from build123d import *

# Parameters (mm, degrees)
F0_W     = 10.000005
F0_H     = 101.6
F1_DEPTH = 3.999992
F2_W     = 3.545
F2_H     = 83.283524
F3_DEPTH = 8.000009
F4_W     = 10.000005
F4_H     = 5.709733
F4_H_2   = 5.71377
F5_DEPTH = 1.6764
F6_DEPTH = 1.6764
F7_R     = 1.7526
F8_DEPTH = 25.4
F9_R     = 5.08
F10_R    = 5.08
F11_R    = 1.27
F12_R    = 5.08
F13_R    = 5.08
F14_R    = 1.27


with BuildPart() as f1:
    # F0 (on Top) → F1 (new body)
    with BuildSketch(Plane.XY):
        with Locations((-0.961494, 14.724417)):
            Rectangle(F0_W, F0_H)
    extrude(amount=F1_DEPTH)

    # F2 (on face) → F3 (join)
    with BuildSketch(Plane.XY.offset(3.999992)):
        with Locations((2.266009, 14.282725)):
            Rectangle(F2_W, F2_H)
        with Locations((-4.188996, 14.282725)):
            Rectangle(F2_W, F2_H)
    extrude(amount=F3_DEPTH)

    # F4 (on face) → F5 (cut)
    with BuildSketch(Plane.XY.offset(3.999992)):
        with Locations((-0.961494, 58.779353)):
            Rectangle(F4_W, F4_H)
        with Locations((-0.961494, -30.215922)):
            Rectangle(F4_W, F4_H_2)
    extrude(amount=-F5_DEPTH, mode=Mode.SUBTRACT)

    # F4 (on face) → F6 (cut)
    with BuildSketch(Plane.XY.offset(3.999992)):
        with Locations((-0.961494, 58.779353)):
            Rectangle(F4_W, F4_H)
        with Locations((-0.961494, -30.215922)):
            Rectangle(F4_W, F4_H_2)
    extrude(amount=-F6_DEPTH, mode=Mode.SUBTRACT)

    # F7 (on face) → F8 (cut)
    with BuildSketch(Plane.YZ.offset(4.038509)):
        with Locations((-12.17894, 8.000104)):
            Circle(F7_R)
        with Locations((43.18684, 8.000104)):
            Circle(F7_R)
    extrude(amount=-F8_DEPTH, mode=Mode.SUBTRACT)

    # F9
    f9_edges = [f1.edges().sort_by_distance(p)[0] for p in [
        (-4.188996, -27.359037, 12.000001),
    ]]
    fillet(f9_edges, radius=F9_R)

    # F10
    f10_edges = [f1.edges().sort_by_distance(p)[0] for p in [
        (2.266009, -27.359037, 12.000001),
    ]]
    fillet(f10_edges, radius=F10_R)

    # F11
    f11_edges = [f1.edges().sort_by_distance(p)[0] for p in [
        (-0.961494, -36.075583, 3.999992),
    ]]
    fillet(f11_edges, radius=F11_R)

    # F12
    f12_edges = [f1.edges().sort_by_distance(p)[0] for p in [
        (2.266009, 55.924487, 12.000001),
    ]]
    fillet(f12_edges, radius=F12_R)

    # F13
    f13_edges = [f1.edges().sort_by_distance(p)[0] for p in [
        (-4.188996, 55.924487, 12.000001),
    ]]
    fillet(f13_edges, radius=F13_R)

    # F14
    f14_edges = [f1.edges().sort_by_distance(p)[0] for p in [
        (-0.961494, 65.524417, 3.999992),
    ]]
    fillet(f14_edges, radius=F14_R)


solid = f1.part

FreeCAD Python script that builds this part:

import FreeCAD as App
import Part
import Sketcher
from FreeCAD import Vector
Q = App.Units.Quantity


def edges_at(feature, points):
    """Names of the edges that pass closest to the given points."""
    edges = feature.Shape.Edges
    near = lambda p: min(range(len(edges)), key=lambda i: edges[i].distToShape(Part.Vertex(*p))[0])
    return sorted({f"Edge{near(p) + 1}" for p in points})


def add_polygon(sketch, points):
    """Adds a closed chain of lines whose ends are joined by coincident constraints."""
    first, n = sketch.GeometryCount, len(points)
    for a, b in zip(points, points[1:] + points[:1]):
        sketch.addGeometry(Part.LineSegment(App.Vector(*a, 0), App.Vector(*b, 0)), False)
    for i in range(n):
        sketch.addConstraint(Sketcher.Constraint("Coincident", first + i, 2, first + (i + 1) % n, 1))

doc = App.newDocument("Part")
body = doc.addObject("PartDesign::Body", "Body")

sketch1 = body.newObject("Sketcher::SketchObject", "Sketch")
sketch1.AttachmentSupport = (doc.getObject("XY_Plane"), [""])
sketch1.MapMode = "FlatFace"
add_polygon(sketch1, [(-6, 66), (-6, -36), (4, -36), (4, 66)])
sketch1.addConstraint(Sketcher.Constraint("Vertical", 0))
sketch1.addConstraint(Sketcher.Constraint("Horizontal", 1))
sketch1.addConstraint(Sketcher.Constraint("Vertical", 2))
sketch1.addConstraint(Sketcher.Constraint("Horizontal", 3))
sketch1.addConstraint(Sketcher.Constraint("DistanceY", 0, 2, 0, 1, Q("4 in")))
sketch1.addConstraint(Sketcher.Constraint("DistanceX", 1, 1, 1, 2, Q("10.000005 mm")))
sketch1.addConstraint(Sketcher.Constraint("DistanceX", -1, 1, 1, 2, Q("4.038508 mm")))
sketch1.addConstraint(Sketcher.Constraint("DistanceY", 0, 2, -1, 1, Q("36.075583 mm")))
pad1 = body.newObject("PartDesign::Pad", "Pad")
pad1.Profile = sketch1
pad1.Length = 3.999992

sketch2 = body.newObject("Sketcher::SketchObject", "Sketch001")
sketch2.AttachmentSupport = (doc.getObject("XY_Plane"), [""])
sketch2.MapMode = "FlatFace"
sketch2.AttachmentOffset = App.Placement(Vector(0, 0, 3.999992), App.Rotation())
add_polygon(sketch2, [(0.5, 55.9), (0.5, -27.4), (4, -27.4), (4, 55.9)])
add_polygon(sketch2, [(-6, 55.9), (-6, -27.4), (-2.4, -27.4), (-2.4, 55.9)])
sketch2.addConstraint(Sketcher.Constraint("Vertical", 0))
sketch2.addConstraint(Sketcher.Constraint("Horizontal", 1))
sketch2.addConstraint(Sketcher.Constraint("Vertical", 2))
sketch2.addConstraint(Sketcher.Constraint("Horizontal", 3))
sketch2.addConstraint(Sketcher.Constraint("Vertical", 4))
sketch2.addConstraint(Sketcher.Constraint("Horizontal", 5))
sketch2.addConstraint(Sketcher.Constraint("Vertical", 6))
sketch2.addConstraint(Sketcher.Constraint("Horizontal", 7))
sketch2.addConstraint(Sketcher.Constraint("Horizontal", 1, 2, 4, 2))
sketch2.addConstraint(Sketcher.Constraint("Horizontal", 3, 2, 6, 2))
sketch2.addConstraint(Sketcher.Constraint("Equal", 3, 5))
sketch2.addConstraint(Sketcher.Constraint("DistanceX", 1, 1, 1, 2, Q("3.545 mm")))
sketch2.addConstraint(Sketcher.Constraint("DistanceY", 0, 2, 0, 1, Q("83.283524 mm")))
sketch2.addConstraint(Sketcher.Constraint("DistanceX", -1, 1, 0, 2, Q("0.493509 mm")))
sketch2.addConstraint(Sketcher.Constraint("DistanceY", 0, 2, -1, 1, Q("27.359037 mm")))
sketch2.addConstraint(Sketcher.Constraint("DistanceX", 4, 2, -1, 1, Q("5.961496 mm")))
pad2 = body.newObject("PartDesign::Pad", "Pad001")
pad2.Profile = sketch2
pad2.Length = 8.000009

sketch3 = body.newObject("Sketcher::SketchObject", "Sketch002")
sketch3.AttachmentSupport = (doc.getObject("XY_Plane"), [""])
sketch3.MapMode = "FlatFace"
sketch3.AttachmentOffset = App.Placement(Vector(0, 0, 3.999992), App.Rotation())
add_polygon(sketch3, [(-6, 62), (-6, 56), (4, 56), (4, 62)])
add_polygon(sketch3, [(-6, -27), (-6, -33), (4, -33), (4, -27)])
sketch3.addConstraint(Sketcher.Constraint("Vertical", 0))
sketch3.addConstraint(Sketcher.Constraint("Horizontal", 1))
sketch3.addConstraint(Sketcher.Constraint("Vertical", 2))
sketch3.addConstraint(Sketcher.Constraint("Horizontal", 3))
sketch3.addConstraint(Sketcher.Constraint("Vertical", 4))
sketch3.addConstraint(Sketcher.Constraint("Horizontal", 5))
sketch3.addConstraint(Sketcher.Constraint("Vertical", 6))
sketch3.addConstraint(Sketcher.Constraint("Horizontal", 7))
sketch3.addConstraint(Sketcher.Constraint("Vertical", 3, 2, 4, 2))
sketch3.addConstraint(Sketcher.Constraint("Vertical", 2, 2, 5, 2))
sketch3.addConstraint(Sketcher.Constraint("DistanceY", 4, 2, 4, 1, Q("5.71377 mm")))
sketch3.addConstraint(Sketcher.Constraint("DistanceX", 1, 1, 1, 2, Q("10.000005 mm")))
sketch3.addConstraint(Sketcher.Constraint("DistanceY", 0, 2, 0, 1, Q("5.709733 mm")))
sketch3.addConstraint(Sketcher.Constraint("DistanceX", -1, 1, 1, 2, Q("4.038508 mm")))
sketch3.addConstraint(Sketcher.Constraint("DistanceY", -1, 1, 2, 2, Q("61.63422 mm")))
sketch3.addConstraint(Sketcher.Constraint("DistanceY", 4, 2, -1, 1, Q("33.072807 mm")))
pocket1 = body.newObject("PartDesign::Pocket", "Pocket")
pocket1.Profile = sketch3
pocket1.Length = Q("0.066 in")

sketch4 = body.newObject("Sketcher::SketchObject", "Sketch003")
sketch4.AttachmentSupport = (doc.getObject("XY_Plane"), [""])
sketch4.MapMode = "FlatFace"
sketch4.AttachmentOffset = App.Placement(Vector(0, 0, 3.999992), App.Rotation())
add_polygon(sketch4, [(-6, 62), (-6, 56), (4, 56), (4, 62)])
add_polygon(sketch4, [(-6, -27), (-6, -33), (4, -33), (4, -27)])
sketch4.addConstraint(Sketcher.Constraint("Vertical", 0))
sketch4.addConstraint(Sketcher.Constraint("Horizontal", 1))
sketch4.addConstraint(Sketcher.Constraint("Vertical", 2))
sketch4.addConstraint(Sketcher.Constraint("Horizontal", 3))
sketch4.addConstraint(Sketcher.Constraint("Vertical", 4))
sketch4.addConstraint(Sketcher.Constraint("Horizontal", 5))
sketch4.addConstraint(Sketcher.Constraint("Vertical", 6))
sketch4.addConstraint(Sketcher.Constraint("Horizontal", 7))
sketch4.addConstraint(Sketcher.Constraint("Vertical", 3, 2, 4, 2))
sketch4.addConstraint(Sketcher.Constraint("Vertical", 2, 2, 5, 2))
sketch4.addConstraint(Sketcher.Constraint("DistanceY", 4, 2, 4, 1, Q("5.71377 mm")))
sketch4.addConstraint(Sketcher.Constraint("DistanceX", 1, 1, 1, 2, Q("10.000005 mm")))
sketch4.addConstraint(Sketcher.Constraint("DistanceY", 0, 2, 0, 1, Q("5.709733 mm")))
sketch4.addConstraint(Sketcher.Constraint("DistanceX", -1, 1, 1, 2, Q("4.038508 mm")))
sketch4.addConstraint(Sketcher.Constraint("DistanceY", -1, 1, 2, 2, Q("61.63422 mm")))
sketch4.addConstraint(Sketcher.Constraint("DistanceY", 4, 2, -1, 1, Q("33.072807 mm")))
pocket2 = body.newObject("PartDesign::Pocket", "Pocket001")
pocket2.Profile = sketch4
pocket2.Length = Q("0.066 in")

sketch5 = body.newObject("Sketcher::SketchObject", "Sketch004")
sketch5.AttachmentSupport = (doc.getObject("YZ_Plane"), [""])
sketch5.MapMode = "FlatFace"
sketch5.AttachmentOffset = App.Placement(Vector(0, 0, 4.038509), App.Rotation())
sketch5.addGeometry(Part.Circle(Vector(-12.2, 8, 0), Vector(0, 0, 1), 1.8), False)
sketch5.addGeometry(Part.Circle(Vector(43.2, 8, 0), Vector(0, 0, 1), 1.8), False)
sketch5.addConstraint(Sketcher.Constraint("Equal", 0, 1))
sketch5.addConstraint(Sketcher.Constraint("Horizontal", 0, 3, 1, 3))
sketch5.addConstraint(Sketcher.Constraint("Diameter", 0, Q("0.138 in")))
sketch5.addConstraint(Sketcher.Constraint("DistanceX", 0, 3, -1, 1, Q("12.17894 mm")))
sketch5.addConstraint(Sketcher.Constraint("DistanceX", -1, 1, 1, 3, Q("43.18684 mm")))
sketch5.addConstraint(Sketcher.Constraint("DistanceY", -1, 1, 0, 3, Q("8.000104 mm")))
pocket3 = body.newObject("PartDesign::Pocket", "Pocket002")
pocket3.Profile = sketch5
pocket3.Length = Q("1 in")
doc.recompute()

fillet = body.newObject("PartDesign::Fillet", "Fillet")
fillet.Base = (pocket3, edges_at(pocket3, [(-4.189, -27.359, 12)]))
fillet.Radius = Q("0.2 in")
doc.recompute()

fillet2 = body.newObject("PartDesign::Fillet", "Fillet001")
fillet2.Base = (fillet, edges_at(fillet, [(2.266, -27.359, 12)]))
fillet2.Radius = Q("0.2 in")
doc.recompute()

fillet3 = body.newObject("PartDesign::Fillet", "Fillet002")
fillet3.Base = (fillet2, edges_at(fillet2, [(-0.961, -36.076, 4)]))
fillet3.Radius = Q("0.05 in")
doc.recompute()

fillet4 = body.newObject("PartDesign::Fillet", "Fillet003")
fillet4.Base = (fillet3, edges_at(fillet3, [(2.266, 55.924, 12)]))
fillet4.Radius = Q("0.2 in")
doc.recompute()

fillet5 = body.newObject("PartDesign::Fillet", "Fillet004")
fillet5.Base = (fillet4, edges_at(fillet4, [(-4.189, 55.924, 12)]))
fillet5.Radius = Q("0.2 in")
doc.recompute()

fillet6 = body.newObject("PartDesign::Fillet", "Fillet005")
fillet6.Base = (fillet5, edges_at(fillet5, [(-0.961, 65.524, 4)]))
fillet6.Radius = Q("0.05 in")

doc.recompute()
